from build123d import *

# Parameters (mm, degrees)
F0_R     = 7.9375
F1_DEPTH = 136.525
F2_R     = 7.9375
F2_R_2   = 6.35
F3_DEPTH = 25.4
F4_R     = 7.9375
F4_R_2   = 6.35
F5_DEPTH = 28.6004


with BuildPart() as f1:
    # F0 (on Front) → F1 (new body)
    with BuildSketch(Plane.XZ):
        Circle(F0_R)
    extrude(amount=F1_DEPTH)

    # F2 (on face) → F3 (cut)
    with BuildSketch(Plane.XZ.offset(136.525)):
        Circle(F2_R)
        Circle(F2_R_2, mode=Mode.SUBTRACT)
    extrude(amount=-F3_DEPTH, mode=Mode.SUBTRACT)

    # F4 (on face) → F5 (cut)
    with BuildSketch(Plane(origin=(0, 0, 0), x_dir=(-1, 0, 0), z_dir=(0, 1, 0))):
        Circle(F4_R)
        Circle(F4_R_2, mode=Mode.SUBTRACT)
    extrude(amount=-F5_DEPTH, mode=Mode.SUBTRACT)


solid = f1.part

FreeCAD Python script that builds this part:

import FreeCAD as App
import Part
import Sketcher
from FreeCAD import Vector
Q = App.Units.Quantity

doc = App.newDocument("Part")
body = doc.addObject("PartDesign::Body", "Body")

# Sketch on XZ plane
sketch1 = body.newObject("Sketcher::SketchObject", "Sketch")
sketch1.AttachmentSupport = (doc.getObject("XZ_Plane"), [""])
sketch1.MapMode = "FlatFace"
sketch1.addGeometry(Part.Circle(Vector(0, 0, 0), Vector(0, 0, 1), 8), False)
sketch1.addConstraint(Sketcher.Constraint("Coincident", 0, 3, -1, 1))
sketch1.addConstraint(Sketcher.Constraint("Diameter", 0, Q("0.625 in")))
pad1 = body.newObject("PartDesign::Pad", "Pad")
pad1.Profile = sketch1
pad1.Length = Q("5.375 in")

# Sketch on XZ plane
sketch2 = body.newObject("Sketcher::SketchObject", "Sketch001")
sketch2.AttachmentSupport = (doc.getObject("XZ_Plane"), [""])
sketch2.MapMode = "FlatFace"
sketch2.AttachmentOffset = App.Placement(Vector(0, 0, 5.375 * 25.4), App.Rotation())
sketch2.addGeometry(Part.Circle(Vector(0, 0, 0), Vector(0, 0, 1), 8), False)
sketch2.addGeometry(Part.Circle(Vector(0, 0, 0), Vector(0, 0, 1), 6), False)
sketch2.addConstraint(Sketcher.Constraint("Coincident", 0, 3, -1, 1))
sketch2.addConstraint(Sketcher.Constraint("Coincident", 1, 3, -1, 1))
sketch2.addConstraint(Sketcher.Constraint("Diameter", 1, Q("0.5 in")))
sketch2.addConstraint(Sketcher.Constraint("Diameter", 0, Q("0.625 in")))
pocket1 = body.newObject("PartDesign::Pocket", "Pocket")
pocket1.Profile = sketch2
pocket1.Length = Q("1 in")

# Sketch on XZ plane
sketch3 = body.newObject("Sketcher::SketchObject", "Sketch002")
sketch3.AttachmentSupport = (doc.getObject("XZ_Plane"), [""])
sketch3.MapMode = "FlatFace"
sketch3.addGeometry(Part.Circle(Vector(0, 0, 0), Vector(0, 0, 1), 8), False)
sketch3.addGeometry(Part.Circle(Vector(0, 0, 0), Vector(0, 0, 1), 6), False)
sketch3.addConstraint(Sketcher.Constraint("Coincident", 0, 3, -1, 1))
sketch3.addConstraint(Sketcher.Constraint("Coincident", 1, 3, -1, 1))
sketch3.addConstraint(Sketcher.Constraint("Diameter", 1, Q("0.5 in")))
sketch3.addConstraint(Sketcher.Constraint("Diameter", 0, Q("0.625 in")))
pocket2 = body.newObject("PartDesign::Pocket", "Pocket001")
pocket2.Profile = sketch3
pocket2.Length = Q("1.126 in")
pocket2.Reversed = True

doc.recompute()
